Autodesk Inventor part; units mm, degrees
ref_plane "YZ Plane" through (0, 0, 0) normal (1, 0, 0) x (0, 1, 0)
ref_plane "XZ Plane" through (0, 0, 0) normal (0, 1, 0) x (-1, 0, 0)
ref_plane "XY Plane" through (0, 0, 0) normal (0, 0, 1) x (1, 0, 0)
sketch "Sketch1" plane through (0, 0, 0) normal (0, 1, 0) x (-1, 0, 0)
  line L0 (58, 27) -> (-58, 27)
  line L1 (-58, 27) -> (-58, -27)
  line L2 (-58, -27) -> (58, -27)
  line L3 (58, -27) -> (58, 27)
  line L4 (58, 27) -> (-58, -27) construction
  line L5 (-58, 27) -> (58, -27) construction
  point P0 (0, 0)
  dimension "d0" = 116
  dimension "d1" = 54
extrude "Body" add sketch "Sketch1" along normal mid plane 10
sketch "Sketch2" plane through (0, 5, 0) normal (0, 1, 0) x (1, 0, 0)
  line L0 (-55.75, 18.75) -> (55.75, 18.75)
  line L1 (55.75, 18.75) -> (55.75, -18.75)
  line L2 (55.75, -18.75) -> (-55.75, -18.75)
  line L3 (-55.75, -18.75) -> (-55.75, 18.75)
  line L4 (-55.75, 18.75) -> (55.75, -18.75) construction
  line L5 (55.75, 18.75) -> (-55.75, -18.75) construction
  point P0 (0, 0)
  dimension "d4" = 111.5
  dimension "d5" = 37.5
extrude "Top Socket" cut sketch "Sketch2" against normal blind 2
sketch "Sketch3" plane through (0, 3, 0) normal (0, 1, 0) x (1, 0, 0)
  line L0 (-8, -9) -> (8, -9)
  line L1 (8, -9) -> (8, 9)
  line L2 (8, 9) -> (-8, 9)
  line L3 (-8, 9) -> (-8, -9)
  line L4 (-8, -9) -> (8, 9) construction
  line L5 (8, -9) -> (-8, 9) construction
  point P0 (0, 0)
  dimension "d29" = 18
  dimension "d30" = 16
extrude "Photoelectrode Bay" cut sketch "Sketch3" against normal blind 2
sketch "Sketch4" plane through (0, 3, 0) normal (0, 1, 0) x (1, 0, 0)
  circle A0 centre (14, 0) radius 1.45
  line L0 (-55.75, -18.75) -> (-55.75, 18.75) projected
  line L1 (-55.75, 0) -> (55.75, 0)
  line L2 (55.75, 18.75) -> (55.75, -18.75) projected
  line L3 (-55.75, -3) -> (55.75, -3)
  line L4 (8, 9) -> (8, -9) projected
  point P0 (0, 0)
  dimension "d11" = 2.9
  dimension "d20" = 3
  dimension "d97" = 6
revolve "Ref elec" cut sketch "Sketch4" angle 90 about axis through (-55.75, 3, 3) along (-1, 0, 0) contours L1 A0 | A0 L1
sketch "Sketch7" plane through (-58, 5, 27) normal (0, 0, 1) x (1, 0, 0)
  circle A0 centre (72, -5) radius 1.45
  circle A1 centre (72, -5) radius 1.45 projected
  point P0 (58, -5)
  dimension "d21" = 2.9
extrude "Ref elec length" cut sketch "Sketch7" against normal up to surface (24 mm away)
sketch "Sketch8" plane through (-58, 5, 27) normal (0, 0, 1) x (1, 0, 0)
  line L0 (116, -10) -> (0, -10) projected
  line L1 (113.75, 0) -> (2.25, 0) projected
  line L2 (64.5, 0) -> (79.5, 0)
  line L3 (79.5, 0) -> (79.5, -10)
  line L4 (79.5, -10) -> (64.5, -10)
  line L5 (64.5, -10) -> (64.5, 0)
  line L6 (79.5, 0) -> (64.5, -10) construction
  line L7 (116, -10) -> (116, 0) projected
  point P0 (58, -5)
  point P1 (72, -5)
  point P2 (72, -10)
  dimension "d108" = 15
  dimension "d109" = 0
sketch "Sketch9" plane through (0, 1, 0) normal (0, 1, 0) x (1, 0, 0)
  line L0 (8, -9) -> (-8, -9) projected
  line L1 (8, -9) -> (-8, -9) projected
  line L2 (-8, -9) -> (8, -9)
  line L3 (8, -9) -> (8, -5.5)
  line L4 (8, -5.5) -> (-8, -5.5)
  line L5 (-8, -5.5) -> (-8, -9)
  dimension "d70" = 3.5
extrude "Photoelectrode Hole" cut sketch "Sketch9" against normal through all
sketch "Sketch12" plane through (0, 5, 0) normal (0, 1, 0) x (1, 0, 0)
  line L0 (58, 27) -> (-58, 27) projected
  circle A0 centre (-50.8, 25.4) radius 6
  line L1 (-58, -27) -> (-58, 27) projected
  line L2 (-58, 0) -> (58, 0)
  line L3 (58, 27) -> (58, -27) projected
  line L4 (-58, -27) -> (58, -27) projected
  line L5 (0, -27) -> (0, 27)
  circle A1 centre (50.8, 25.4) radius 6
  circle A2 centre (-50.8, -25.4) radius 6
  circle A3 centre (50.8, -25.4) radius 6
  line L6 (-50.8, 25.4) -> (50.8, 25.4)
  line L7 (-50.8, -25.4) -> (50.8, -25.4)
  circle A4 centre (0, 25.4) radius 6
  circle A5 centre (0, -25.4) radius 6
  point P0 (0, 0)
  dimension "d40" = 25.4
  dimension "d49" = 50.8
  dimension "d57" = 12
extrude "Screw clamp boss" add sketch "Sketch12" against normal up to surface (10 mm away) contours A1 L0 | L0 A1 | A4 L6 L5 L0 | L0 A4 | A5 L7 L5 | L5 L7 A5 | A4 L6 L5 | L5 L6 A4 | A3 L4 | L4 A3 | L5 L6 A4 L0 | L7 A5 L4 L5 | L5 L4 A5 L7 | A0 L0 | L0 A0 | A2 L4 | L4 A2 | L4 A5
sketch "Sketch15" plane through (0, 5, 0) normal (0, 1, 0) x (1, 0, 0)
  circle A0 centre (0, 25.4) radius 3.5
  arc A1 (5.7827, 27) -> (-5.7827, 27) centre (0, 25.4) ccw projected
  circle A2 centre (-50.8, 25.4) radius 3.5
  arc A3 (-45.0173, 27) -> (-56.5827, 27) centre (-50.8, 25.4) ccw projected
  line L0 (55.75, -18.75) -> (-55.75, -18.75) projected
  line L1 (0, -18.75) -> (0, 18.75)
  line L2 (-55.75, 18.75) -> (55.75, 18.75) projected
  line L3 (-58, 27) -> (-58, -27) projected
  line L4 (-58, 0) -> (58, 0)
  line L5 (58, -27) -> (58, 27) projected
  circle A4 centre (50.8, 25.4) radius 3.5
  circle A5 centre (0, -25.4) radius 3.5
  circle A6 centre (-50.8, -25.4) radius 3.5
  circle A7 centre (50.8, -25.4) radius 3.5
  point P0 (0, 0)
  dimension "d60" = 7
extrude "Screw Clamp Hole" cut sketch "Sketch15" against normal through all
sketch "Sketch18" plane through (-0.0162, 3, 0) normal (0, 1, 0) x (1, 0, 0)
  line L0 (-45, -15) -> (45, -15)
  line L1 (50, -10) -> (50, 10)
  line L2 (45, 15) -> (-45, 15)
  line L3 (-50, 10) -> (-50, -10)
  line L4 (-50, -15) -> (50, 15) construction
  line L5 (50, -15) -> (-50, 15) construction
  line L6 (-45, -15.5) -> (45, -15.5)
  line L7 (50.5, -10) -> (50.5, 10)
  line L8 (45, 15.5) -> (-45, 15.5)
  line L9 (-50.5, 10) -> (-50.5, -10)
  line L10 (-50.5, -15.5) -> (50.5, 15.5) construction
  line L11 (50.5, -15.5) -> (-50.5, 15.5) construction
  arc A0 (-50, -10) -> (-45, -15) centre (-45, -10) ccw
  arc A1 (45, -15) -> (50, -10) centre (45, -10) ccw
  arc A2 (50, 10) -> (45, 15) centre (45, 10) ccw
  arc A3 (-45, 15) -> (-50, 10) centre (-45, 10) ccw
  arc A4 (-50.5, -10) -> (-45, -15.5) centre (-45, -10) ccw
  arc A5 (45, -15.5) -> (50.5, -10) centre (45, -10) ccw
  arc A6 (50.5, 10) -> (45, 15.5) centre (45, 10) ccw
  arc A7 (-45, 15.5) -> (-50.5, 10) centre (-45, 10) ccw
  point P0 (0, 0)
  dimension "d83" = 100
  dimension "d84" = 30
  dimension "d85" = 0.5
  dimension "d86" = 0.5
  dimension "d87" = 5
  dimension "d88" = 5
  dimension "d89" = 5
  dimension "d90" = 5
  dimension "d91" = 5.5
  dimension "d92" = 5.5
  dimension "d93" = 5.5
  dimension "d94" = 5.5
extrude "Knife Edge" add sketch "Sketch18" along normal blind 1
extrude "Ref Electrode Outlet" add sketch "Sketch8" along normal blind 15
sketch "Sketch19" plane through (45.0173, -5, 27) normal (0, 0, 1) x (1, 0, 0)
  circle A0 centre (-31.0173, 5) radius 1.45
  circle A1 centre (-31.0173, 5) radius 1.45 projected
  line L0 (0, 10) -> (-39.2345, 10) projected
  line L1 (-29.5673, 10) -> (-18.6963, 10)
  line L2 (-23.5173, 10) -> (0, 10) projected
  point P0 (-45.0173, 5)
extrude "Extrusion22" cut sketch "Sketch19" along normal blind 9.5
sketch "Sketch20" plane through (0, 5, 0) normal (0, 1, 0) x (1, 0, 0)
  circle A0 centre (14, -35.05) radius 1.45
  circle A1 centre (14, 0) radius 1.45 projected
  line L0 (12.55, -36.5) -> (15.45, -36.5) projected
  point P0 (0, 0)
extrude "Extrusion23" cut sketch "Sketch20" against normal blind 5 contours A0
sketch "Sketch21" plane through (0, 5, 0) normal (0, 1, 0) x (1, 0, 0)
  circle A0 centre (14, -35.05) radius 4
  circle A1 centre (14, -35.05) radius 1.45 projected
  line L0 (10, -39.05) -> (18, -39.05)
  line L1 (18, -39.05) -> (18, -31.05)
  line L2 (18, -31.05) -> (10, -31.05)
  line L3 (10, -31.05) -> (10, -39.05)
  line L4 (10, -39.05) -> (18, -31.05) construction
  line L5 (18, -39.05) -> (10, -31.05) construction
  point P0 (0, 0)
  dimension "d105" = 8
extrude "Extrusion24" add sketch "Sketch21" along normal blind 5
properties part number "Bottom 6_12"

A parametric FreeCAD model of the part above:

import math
import FreeCAD as App
import Part
import Sketcher
from FreeCAD import Vector
Q = App.Units.Quantity

doc = App.newDocument("Part")
params = doc.addObject("Spreadsheet::Sheet", "Params")
for row, (alias, value) in enumerate([
    ("sketch1_width", "116 mm"),
    ("sketch1_height", "54 mm"),
    ("pad1_length", "10 mm"),
    ("sketch2_width", "111.5 mm"),
    ("sketch2_height", "37.5 mm"),
    ("pocket1_length", "2 mm"),
    ("sketch3_width", "16 mm"),
    ("sketch3_height", "18 mm"),
    ("pocket2_length", "2 mm"),
    ("sketch4_diameter", "2.9 mm"),
    ("sketch4_width", "10 mm"),
    ("groove_angle", "90 deg"),
    ("sketch5_diameter", "2.9 mm"),
    ("pocket3_length", "24 mm"),
    ("sketch6_height", "3.5 mm"),
    ("sketch6_width", "16 mm"),
    ("sketch7_diameter", "12 mm"),
    ("pad2_length", "10 mm"),
    ("sketch8_diameter", "7 mm"),
    ("sketch9_radius", "5 mm"),
    ("sketch9_radius2", "5.5 mm"),
    ("sketch9_width", "90 mm"),
    ("sketch9_height", "20 mm"),
    ("pad3_length", "1 mm"),
    ("sketch10_width", "15 mm"),
    ("sketch10_height", "10 mm"),
    ("pad4_length", "15 mm"),
    ("sketch11_diameter", "2.9 mm"),
    ("pocket6_length", "9.5 mm"),
    ("sketch12_diameter", "2.9 mm"),
    ("pocket7_length", "5 mm"),
    ("sketch13_width", "8 mm"),
    ("sketch13_diameter", "2.9 mm"),
    ("pad5_length", "5 mm"),
], start=1):
    params.set(f"A{row}", alias)
    params.set(f"B{row}", "=" + value)
    params.setAlias(f"B{row}", alias)

body = doc.addObject("PartDesign::Body", "Body")

# Sketch on XZ plane
sketch1 = doc.addObject("Sketcher::SketchObject", "Sketch")
body.addObject(sketch1)
sketch1.AttachmentSupport = (doc.XZ_Plane, [""])
sketch1.MapMode = "FlatFace"
sketch1.addGeometry([
    Part.LineSegment(Vector(-58, -27, 0), Vector(-58, 27, 0)),
    Part.LineSegment(Vector(-58, 27, 0), Vector(58, 27, 0)),
    Part.LineSegment(Vector(58, 27, 0), Vector(58, -27, 0)),
    Part.LineSegment(Vector(58, -27, 0), Vector(-58, -27, 0)),
], False)
sketch1.addConstraint([
    Sketcher.Constraint("Coincident", 0, 2, 1, 1),
    Sketcher.Constraint("Coincident", 1, 2, 2, 1),
    Sketcher.Constraint("Coincident", 2, 2, 3, 1),
    Sketcher.Constraint("Coincident", 3, 2, 0, 1),
    Sketcher.Constraint("Vertical", 0),
    Sketcher.Constraint("Horizontal", 1),
    Sketcher.Constraint("Vertical", 2),
    Sketcher.Constraint("Horizontal", 3),
    Sketcher.Constraint("Symmetric", 0, 2, 2, 2, -1, 1),
    Sketcher.Constraint("DistanceX", 1, 1, 1, 2, Q("116 mm")),
    Sketcher.Constraint("DistanceY", 0, 1, 0, 2, Q("54 mm")),
])
sketch1.setExpression("Constraints[9]", "Params.sketch1_width")
sketch1.setExpression("Constraints[10]", "Params.sketch1_height")
pad1 = doc.addObject("PartDesign::Pad", "Pad")
body.addObject(pad1)
pad1.Profile = sketch1
pad1.setExpression("Length", "Params.pad1_length")
pad1.Midplane = True

# Sketch on XZ plane
sketch2 = doc.addObject("Sketcher::SketchObject", "Sketch001")
body.addObject(sketch2)
sketch2.AttachmentSupport = (doc.XZ_Plane, [""])
sketch2.MapMode = "FlatFace"
sketch2.AttachmentOffset = App.Placement(Vector(0, 0, -5), App.Rotation())
sketch2.addGeometry([
    Part.LineSegment(Vector(56, -19, 0), Vector(-56, -19, 0)),
    Part.LineSegment(Vector(-56, -19, 0), Vector(-56, 19, 0)),
    Part.LineSegment(Vector(-56, 19, 0), Vector(56, 19, 0)),
    Part.LineSegment(Vector(56, 19, 0), Vector(56, -19, 0)),
], False)
sketch2.addConstraint([
    Sketcher.Constraint("Coincident", 0, 2, 1, 1),
    Sketcher.Constraint("Coincident", 1, 2, 2, 1),
    Sketcher.Constraint("Coincident", 2, 2, 3, 1),
    Sketcher.Constraint("Coincident", 3, 2, 0, 1),
    Sketcher.Constraint("Horizontal", 0),
    Sketcher.Constraint("Vertical", 1),
    Sketcher.Constraint("Horizontal", 2),
    Sketcher.Constraint("Vertical", 3),
    Sketcher.Constraint("Symmetric", 0, 2, 2, 2, -1, 1),
    Sketcher.Constraint("DistanceX", 0, 2, 0, 1, Q("111.5 mm")),
    Sketcher.Constraint("DistanceY", 1, 1, 1, 2, Q("37.5 mm")),
])
sketch2.setExpression("Constraints[9]", "Params.sketch2_width")
sketch2.setExpression("Constraints[10]", "Params.sketch2_height")
pocket1 = doc.addObject("PartDesign::Pocket", "Pocket")
body.addObject(pocket1)
pocket1.Profile = sketch2
pocket1.setExpression("Length", "Params.pocket1_length")
pocket1.Reversed = True

# Sketch on XZ plane
sketch3 = doc.addObject("Sketcher::SketchObject", "Sketch002")
body.addObject(sketch3)
sketch3.AttachmentSupport = (doc.XZ_Plane, [""])
sketch3.MapMode = "FlatFace"
sketch3.AttachmentOffset = App.Placement(Vector(0, 0, -3), App.Rotation())
sketch3.addGeometry([
    Part.LineSegment(Vector(-8, -9, 0), Vector(-8, 9, 0)),
    Part.LineSegment(Vector(-8, 9, 0), Vector(8, 9, 0)),
    Part.LineSegment(Vector(8, 9, 0), Vector(8, -9, 0)),
    Part.LineSegment(Vector(8, -9, 0), Vector(-8, -9, 0)),
], False)
sketch3.addConstraint([
    Sketcher.Constraint("Coincident", 0, 2, 1, 1),
    Sketcher.Constraint("Coincident", 1, 2, 2, 1),
    Sketcher.Constraint("Coincident", 2, 2, 3, 1),
    Sketcher.Constraint("Coincident", 3, 2, 0, 1),
    Sketcher.Constraint("Vertical", 0),
    Sketcher.Constraint("Horizontal", 1),
    Sketcher.Constraint("Vertical", 2),
    Sketcher.Constraint("Horizontal", 3),
    Sketcher.Constraint("Symmetric", 0, 2, 2, 2, -1, 1),
    Sketcher.Constraint("DistanceX", 1, 1, 1, 2, Q("16 mm")),
    Sketcher.Constraint("DistanceY", 0, 1, 0, 2, Q("18 mm")),
])
sketch3.setExpression("Constraints[9]", "Params.sketch3_width")
sketch3.setExpression("Constraints[10]", "Params.sketch3_height")
pocket2 = doc.addObject("PartDesign::Pocket", "Pocket001")
body.addObject(pocket2)
pocket2.Profile = sketch3
pocket2.setExpression("Length", "Params.pocket2_length")
pocket2.Reversed = True

# Sketch on XZ plane
sketch4 = doc.addObject("Sketcher::SketchObject", "Sketch003")
body.addObject(sketch4)
sketch4.AttachmentSupport = (doc.XZ_Plane, [""])
sketch4.MapMode = "FlatFace"
sketch4.AttachmentOffset = App.Placement(Vector(0, 0, -3), App.Rotation())
sketch4.addGeometry(Part.Circle(Vector(14, 0, 0), Vector(0, 0, 1), 1.4), False)
sketch4.addGeometry(Part.LineSegment(Vector(14, 3, 0), Vector(4, 3, 0)), True)  # axis
sketch4.addConstraint([
    Sketcher.Constraint("Horizontal", 1),
    Sketcher.Constraint("PointOnObject", 0, 3, -1),
    Sketcher.Constraint("Vertical", 0, 3, 1, 1),
    Sketcher.Constraint("Diameter", 0, Q("2.9 mm")),
    Sketcher.Constraint("DistanceY", -1, 1, 1, 1, Q("3 mm")),
    Sketcher.Constraint("DistanceX", 1, 2, 1, 1, Q("10 mm")),
    Sketcher.Constraint("DistanceX", -1, 1, 0, 3, Q("14 mm")),
])
sketch4.setExpression("Constraints[3]", "Params.sketch4_diameter")
sketch4.setExpression("Constraints[5]", "Params.sketch4_width")
groove = doc.addObject("PartDesign::Groove", "Groove")
body.addObject(groove)
groove.Profile = sketch4
groove.ReferenceAxis = (sketch4, ["Axis0"])
groove.setExpression("Angle", "Params.groove_angle")

# Sketch on XY plane
sketch5 = doc.addObject("Sketcher::SketchObject", "Sketch004")
body.addObject(sketch5)
sketch5.AttachmentSupport = (doc.XY_Plane, [""])
sketch5.MapMode = "FlatFace"
sketch5.AttachmentOffset = App.Placement(Vector(0, 0, 27), App.Rotation())
sketch5.addGeometry(Part.Circle(Vector(14, 0, 0), Vector(0, 0, 1), 1.4), False)
sketch5.addConstraint([
    Sketcher.Constraint("PointOnObject", 0, 3, -1),
    Sketcher.Constraint("Diameter", 0, Q("2.9 mm")),
    Sketcher.Constraint("DistanceX", -1, 1, 0, 3, Q("14 mm")),
])
sketch5.setExpression("Constraints[1]", "Params.sketch5_diameter")
pocket3 = doc.addObject("PartDesign::Pocket", "Pocket002")
body.addObject(pocket3)
pocket3.Profile = sketch5
pocket3.setExpression("Length", "Params.pocket3_length")

# Sketch on XZ plane
sketch6 = doc.addObject("Sketcher::SketchObject", "Sketch005")
body.addObject(sketch6)
sketch6.AttachmentSupport = (doc.XZ_Plane, [""])
sketch6.MapMode = "FlatFace"
sketch6.AttachmentOffset = App.Placement(Vector(0, 0, -1), App.Rotation())
sketch6.addGeometry([
    Part.LineSegment(Vector(-8, 9, 0), Vector(8, 9, 0)),
    Part.LineSegment(Vector(8, 9, 0), Vector(8, 5.5, 0)),
    Part.LineSegment(Vector(8, 5.5, 0), Vector(-8, 5.5, 0)),
    Part.LineSegment(Vector(-8, 5.5, 0), Vector(-8, 9, 0)),
], False)
sketch6.addConstraint([
    Sketcher.Constraint("Coincident", 0, 2, 1, 1),
    Sketcher.Constraint("Coincident", 1, 2, 2, 1),
    Sketcher.Constraint("Coincident", 2, 2, 3, 1),
    Sketcher.Constraint("Coincident", 3, 2, 0, 1),
    Sketcher.Constraint("Horizontal", 0),
    Sketcher.Constraint("Vertical", 1),
    Sketcher.Constraint("Horizontal", 2),
    Sketcher.Constraint("Vertical", 3),
    Sketcher.Constraint("DistanceY", 1, 2, 1, 1, Q("3.5 mm")),
    Sketcher.Constraint("DistanceX", 0, 1, 0, 2, Q("16 mm")),
    Sketcher.Constraint("DistanceX", -1, 1, 0, 2, Q("8 mm")),
    Sketcher.Constraint("DistanceY", -1, 1, 0, 2, Q("9 mm")),
])
sketch6.setExpression("Constraints[8]", "Params.sketch6_height")
sketch6.setExpression("Constraints[9]", "Params.sketch6_width")
pocket4 = doc.addObject("PartDesign::Pocket", "Pocket003")
body.addObject(pocket4)
pocket4.Profile = sketch6
pocket4.Type = "ThroughAll"
pocket4.Reversed = True

# Sketch on XZ plane
sketch7 = doc.addObject("Sketcher::SketchObject", "Sketch006")
body.addObject(sketch7)
sketch7.AttachmentSupport = (doc.XZ_Plane, [""])
sketch7.MapMode = "FlatFace"
sketch7.AttachmentOffset = App.Placement(Vector(0, 0, -5), App.Rotation())
sketch7.addGeometry([
    Part.Circle(Vector(51, -25, 0), Vector(0, 0, 1), 6),  # 0
    Part.Circle(Vector(0, -25, 0), Vector(0, 0, 1), 6),  # 1
    Part.Circle(Vector(0, 25, 0), Vector(0, 0, 1), 6),  # 2
    Part.Circle(Vector(51, 25, 0), Vector(0, 0, 1), 6),  # 3
    Part.Circle(Vector(-51, -25, 0), Vector(0, 0, 1), 6),  # 4
    Part.Circle(Vector(-51, 25, 0), Vector(0, 0, 1), 6),  # 5
], False)
sketch7.addConstraint([
    Sketcher.Constraint("Equal", 0, 1),
    Sketcher.Constraint("Equal", 1, 2),
    Sketcher.Constraint("Equal", 2, 3),
    Sketcher.Constraint("Equal", 3, 4),
    Sketcher.Constraint("Equal", 4, 5),
    Sketcher.Constraint("Symmetric", 1, 3, 2, 3, -1, 1),
    Sketcher.Constraint("Symmetric", 3, 3, 4, 3, -1, 1),
    Sketcher.Constraint("Symmetric", 0, 3, 5, 3, -1, 1),
    Sketcher.Constraint("Symmetric", 0, 3, 4, 3, -2),
    Sketcher.Constraint("PointOnObject", 1, 3, -2),
    Sketcher.Constraint("Horizontal", 0, 3, 1, 3),
    Sketcher.Constraint("Diameter", 0, Q("12 mm")),
    Sketcher.Constraint("DistanceX", -1, 1, 0, 3, Q("50.8 mm")),
    Sketcher.Constraint("DistanceY", 0, 3, -1, 1, Q("25.4 mm")),
])
sketch7.setExpression("Constraints[11]", "Params.sketch7_diameter")
pad2 = doc.addObject("PartDesign::Pad", "Pad001")
body.addObject(pad2)
pad2.Profile = sketch7
pad2.setExpression("Length", "Params.pad2_length")

# Sketch on XZ plane
sketch8 = doc.addObject("Sketcher::SketchObject", "Sketch007")
body.addObject(sketch8)
sketch8.AttachmentSupport = (doc.XZ_Plane, [""])
sketch8.MapMode = "FlatFace"
sketch8.AttachmentOffset = App.Placement(Vector(0, 0, -5), App.Rotation())
sketch8.addGeometry([
    Part.Circle(Vector(0, -25.4, 0), Vector(0, 0, 1), 3.5),  # 0
    Part.Circle(Vector(-50.8, -25.4, 0), Vector(0, 0, 1), 3.5),  # 1
    Part.Circle(Vector(50.8, -25.4, 0), Vector(0, 0, 1), 3.5),  # 2
    Part.Circle(Vector(0, 25.4, 0), Vector(0, 0, 1), 3.5),  # 3
    Part.Circle(Vector(-50.8, 25.4, 0), Vector(0, 0, 1), 3.5),  # 4
    Part.Circle(Vector(50.8, 25.4, 0), Vector(0, 0, 1), 3.5),  # 5
], False)
sketch8.addConstraint([
    Sketcher.Constraint("Equal", 0, 1),
    Sketcher.Constraint("Equal", 1, 2),
    Sketcher.Constraint("Equal", 2, 3),
    Sketcher.Constraint("Equal", 3, 4),
    Sketcher.Constraint("Equal", 4, 5),
    Sketcher.Constraint("Symmetric", 0, 3, 3, 3, -1, 1),
    Sketcher.Constraint("Symmetric", 2, 3, 4, 3, -1, 1),
    Sketcher.Constraint("Symmetric", 1, 3, 5, 3, -1, 1),
    Sketcher.Constraint("Symmetric", 1, 3, 2, 3, -2),
    Sketcher.Constraint("PointOnObject", 0, 3, -2),
    Sketcher.Constraint("Horizontal", 0, 3, 1, 3),
    Sketcher.Constraint("Diameter", 0, Q("7 mm")),
    Sketcher.Constraint("DistanceY", 0, 3, -1, 1, Q("25.4 mm")),
    Sketcher.Constraint("DistanceX", 1, 3, -1, 1, Q("50.8 mm")),
])
sketch8.setExpression("Constraints[11]", "Params.sketch8_diameter")
pocket5 = doc.addObject("PartDesign::Pocket", "Pocket004")
body.addObject(pocket5)
pocket5.Profile = sketch8
pocket5.Type = "ThroughAll"
pocket5.Reversed = True

# Sketch on XZ plane
sketch9 = doc.addObject("Sketcher::SketchObject", "Sketch008")
body.addObject(sketch9)
sketch9.AttachmentSupport = (doc.XZ_Plane, [""])
sketch9.MapMode = "FlatFace"
sketch9.AttachmentOffset = App.Placement(Vector(0, 0, -3), App.Rotation())
sketch9.addGeometry([
    Part.ArcOfCircle(Part.Circle(Vector(-45, 10, 0), Vector(0, 0, 1), 6), math.radians(90), math.radians(180)),  # 0
    Part.LineSegment(Vector(-45, 16, 0), Vector(45, 16, 0)),  # 1
    Part.ArcOfCircle(Part.Circle(Vector(45, 10, 0), Vector(0, 0, 1), 6), math.radians(0), math.radians(90)),  # 2
    Part.LineSegment(Vector(50, 10, 0), Vector(50, -10, 0)),  # 3
    Part.ArcOfCircle(Part.Circle(Vector(45, -10, 0), Vector(0, 0, 1), 6), math.radians(-90), math.radians(0)),  # 4
    Part.LineSegment(Vector(45, -16, 0), Vector(-45, -16, 0)),  # 5
    Part.ArcOfCircle(Part.Circle(Vector(-45, -10, 0), Vector(0, 0, 1), 6), math.radians(180), math.radians(270)),  # 6
    Part.LineSegment(Vector(-51, -10, 0), Vector(-51, 10, 0)),  # 7
    Part.LineSegment(Vector(45, 15, 0), Vector(-45, 15, 0)),  # 8
    Part.ArcOfCircle(Part.Circle(Vector(-45, 10, 0), Vector(0, 0, 1), 5), math.radians(90), math.radians(180)),  # 9
    Part.LineSegment(Vector(-50, 10, 0), Vector(-50, -10, 0)),  # 10
    Part.ArcOfCircle(Part.Circle(Vector(-45, -10, 0), Vector(0, 0, 1), 5), math.radians(180), math.radians(270)),  # 11
    Part.LineSegment(Vector(-45, -15, 0), Vector(45, -15, 0)),  # 12
    Part.ArcOfCircle(Part.Circle(Vector(45, -10, 0), Vector(0, 0, 1), 5), math.radians(-90), math.radians(0)),  # 13
    Part.LineSegment(Vector(50, -10, 0), Vector(50, 10, 0)),  # 14
    Part.ArcOfCircle(Part.Circle(Vector(45, 10, 0), Vector(0, 0, 1), 5), math.radians(0), math.radians(90)),  # 15
], False)
sketch9.addConstraint([
    Sketcher.Constraint("Tangent", 0, 1, 1, 1),
    Sketcher.Constraint("Tangent", 1, 2, 2, 2),
    Sketcher.Constraint("Tangent", 2, 1, 3, 1),
    Sketcher.Constraint("Tangent", 3, 2, 4, 2),
    Sketcher.Constraint("Tangent", 4, 1, 5, 1),
    Sketcher.Constraint("Tangent", 5, 2, 6, 2),
    Sketcher.Constraint("Tangent", 6, 1, 7, 1),
    Sketcher.Constraint("Tangent", 7, 2, 0, 2),
    Sketcher.Constraint("Tangent", 8, 2, 9, 1),
    Sketcher.Constraint("Tangent", 9, 2, 10, 1),
    Sketcher.Constraint("Tangent", 10, 2, 11, 1),
    Sketcher.Constraint("Tangent", 11, 2, 12, 1),
    Sketcher.Constraint("Tangent", 12, 2, 13, 1),
    Sketcher.Constraint("Tangent", 13, 2, 14, 1),
    Sketcher.Constraint("Tangent", 14, 2, 15, 1),
    Sketcher.Constraint("Tangent", 15, 2, 8, 1),
    Sketcher.Constraint("Horizontal", 1),
    Sketcher.Constraint("Vertical", 3),
    Sketcher.Constraint("Horizontal", 5),
    Sketcher.Constraint("Vertical", 7),
    Sketcher.Constraint("Horizontal", 8),
    Sketcher.Constraint("Vertical", 10),
    Sketcher.Constraint("Horizontal", 12),
    Sketcher.Constraint("Vertical", 14),
    Sketcher.Constraint("Coincident", 9, 3, 0, 3),
    Sketcher.Constraint("Coincident", 11, 3, 6, 3),
    Sketcher.Constraint("Coincident", 13, 3, 4, 3),
    Sketcher.Constraint("Equal", 0, 2),
    Sketcher.Constraint("Equal", 2, 4),
    Sketcher.Constraint("Equal", 4, 6),
    Sketcher.Constraint("Equal", 13, 15),
    Sketcher.Constraint("Radius", 9, Q("5 mm")),
    Sketcher.Constraint("Radius", 0, Q("5.5 mm")),
    Sketcher.Constraint("DistanceX", 1, 1, 1, 2, Q("90 mm")),
    Sketcher.Constraint("DistanceY", 3, 2, 3, 1, Q("20 mm")),
    Sketcher.Constraint("DistanceY", -1, 1, 0, 3, Q("10 mm")),
    Sketcher.Constraint("DistanceX", 0, 3, -1, 1, Q("45.0162 mm")),
])
sketch9.setExpression("Constraints[31]", "Params.sketch9_radius")
sketch9.setExpression("Constraints[32]", "Params.sketch9_radius2")
sketch9.setExpression("Constraints[33]", "Params.sketch9_width")
sketch9.setExpression("Constraints[34]", "Params.sketch9_height")
pad3 = doc.addObject("PartDesign::Pad", "Pad002")
body.addObject(pad3)
pad3.Profile = sketch9
pad3.setExpression("Length", "Params.pad3_length")
pad3.Reversed = True

# Sketch on XY plane
sketch10 = doc.addObject("Sketcher::SketchObject", "Sketch009")
body.addObject(sketch10)
sketch10.AttachmentSupport = (doc.XY_Plane, [""])
sketch10.MapMode = "FlatFace"
sketch10.AttachmentOffset = App.Placement(Vector(0, 0, 27), App.Rotation())
sketch10.addGeometry([
    Part.LineSegment(Vector(6, -5, 0), Vector(22, -5, 0)),
    Part.LineSegment(Vector(22, -5, 0), Vector(22, 5, 0)),
    Part.LineSegment(Vector(22, 5, 0), Vector(6, 5, 0)),
    Part.LineSegment(Vector(6, 5, 0), Vector(6, -5, 0)),
], False)
sketch10.addConstraint([
    Sketcher.Constraint("Coincident", 0, 2, 1, 1),
    Sketcher.Constraint("Coincident", 1, 2, 2, 1),
    Sketcher.Constraint("Coincident", 2, 2, 3, 1),
    Sketcher.Constraint("Coincident", 3, 2, 0, 1),
    Sketcher.Constraint("Horizontal", 0),
    Sketcher.Constraint("Vertical", 1),
    Sketcher.Constraint("Horizontal", 2),
    Sketcher.Constraint("Vertical", 3),
    Sketcher.Constraint("DistanceX", 0, 1, 0, 2, Q("15 mm")),
    Sketcher.Constraint("DistanceY", 1, 1, 1, 2, Q("10 mm")),
    Sketcher.Constraint("DistanceY", 0, 2, -1, 1, Q("5 mm")),
    Sketcher.Constraint("DistanceX", -1, 1, 0, 2, Q("21.5 mm")),
])
sketch10.setExpression("Constraints[8]", "Params.sketch10_width")
sketch10.setExpression("Constraints[9]", "Params.sketch10_height")
pad4 = doc.addObject("PartDesign::Pad", "Pad003")
body.addObject(pad4)
pad4.Profile = sketch10
pad4.setExpression("Length", "Params.pad4_length")

# Sketch on XY plane
sketch11 = doc.addObject("Sketcher::SketchObject", "Sketch010")
body.addObject(sketch11)
sketch11.AttachmentSupport = (doc.XY_Plane, [""])
sketch11.MapMode = "FlatFace"
sketch11.AttachmentOffset = App.Placement(Vector(0, 0, 27), App.Rotation())
sketch11.addGeometry(Part.Circle(Vector(14, 0, 0), Vector(0, 0, 1), 1.4), False)
sketch11.addConstraint([
    Sketcher.Constraint("PointOnObject", 0, 3, -1),
    Sketcher.Constraint("Diameter", 0, Q("2.9 mm")),
    Sketcher.Constraint("DistanceX", -1, 1, 0, 3, Q("14 mm")),
])
sketch11.setExpression("Constraints[1]", "Params.sketch11_diameter")
pocket6 = doc.addObject("PartDesign::Pocket", "Pocket005")
body.addObject(pocket6)
pocket6.Profile = sketch11
pocket6.setExpression("Length", "Params.pocket6_length")
pocket6.Reversed = True

# Sketch on XZ plane
sketch12 = doc.addObject("Sketcher::SketchObject", "Sketch011")
body.addObject(sketch12)
sketch12.AttachmentSupport = (doc.XZ_Plane, [""])
sketch12.MapMode = "FlatFace"
sketch12.AttachmentOffset = App.Placement(Vector(0, 0, -5), App.Rotation())
sketch12.addGeometry(Part.Circle(Vector(14, 35, 0), Vector(0, 0, 1), 1.4), False)
sketch12.addConstraint([
    Sketcher.Constraint("Diameter", 0, Q("2.9 mm")),
    Sketcher.Constraint("DistanceX", -1, 1, 0, 3, Q("14 mm")),
    Sketcher.Constraint("DistanceY", -1, 1, 0, 3, Q("35.05 mm")),
])
sketch12.setExpression("Constraints[0]", "Params.sketch12_diameter")
pocket7 = doc.addObject("PartDesign::Pocket", "Pocket006")
body.addObject(pocket7)
pocket7.Profile = sketch12
pocket7.setExpression("Length", "Params.pocket7_length")
pocket7.Reversed = True

# Sketch on XZ plane
sketch13 = doc.addObject("Sketcher::SketchObject", "Sketch012")
body.addObject(sketch13)
sketch13.AttachmentSupport = (doc.XZ_Plane, [""])
sketch13.MapMode = "FlatFace"
sketch13.AttachmentOffset = App.Placement(Vector(0, 0, -5), App.Rotation())
sketch13.addGeometry([
    Part.LineSegment(Vector(18, 39, 0), Vector(18, 31.1, 0)),  # 0
    Part.LineSegment(Vector(18, 31.1, 0), Vector(10, 31.1, 0)),  # 1
    Part.LineSegment(Vector(10, 31.1, 0), Vector(10, 39, 0)),  # 2
    Part.LineSegment(Vector(10, 39, 0), Vector(18, 39, 0)),  # 3
    Part.Circle(Vector(14, 35, 0), Vector(0, 0, 1), 1.4),  # 4
], False)
sketch13.addConstraint([
    Sketcher.Constraint("Coincident", 0, 2, 1, 1),
    Sketcher.Constraint("Coincident", 1, 2, 2, 1),
    Sketcher.Constraint("Coincident", 2, 2, 3, 1),
    Sketcher.Constraint("Coincident", 3, 2, 0, 1),
    Sketcher.Constraint("Vertical", 0),
    Sketcher.Constraint("Horizontal", 1),
    Sketcher.Constraint("Vertical", 2),
    Sketcher.Constraint("Horizontal", 3),
    Sketcher.Constraint("Equal", 3, 0),
    Sketcher.Constraint("DistanceX", 1, 2, 1, 1, Q("8 mm")),
    Sketcher.Constraint("Diameter", 4, Q("2.9 mm")),
    Sketcher.Constraint("DistanceX", -1, 1, 4, 3, Q("14 mm")),
    Sketcher.Constraint("DistanceX", -1, 1, 0, 2, Q("18 mm")),
    Sketcher.Constraint("DistanceY", 0, 2, 4, 3, Q("4 mm")),
    Sketcher.Constraint("DistanceY", -1, 1, 4, 3, Q("35.05 mm")),
])
sketch13.setExpression("Constraints[9]", "Params.sketch13_width")
sketch13.setExpression("Constraints[10]", "Params.sketch13_diameter")
pad5 = doc.addObject("PartDesign::Pad", "Pad004")
body.addObject(pad5)
pad5.Profile = sketch13
pad5.setExpression("Length", "Params.pad5_length")
pad5.Reversed = True

doc.recompute()
